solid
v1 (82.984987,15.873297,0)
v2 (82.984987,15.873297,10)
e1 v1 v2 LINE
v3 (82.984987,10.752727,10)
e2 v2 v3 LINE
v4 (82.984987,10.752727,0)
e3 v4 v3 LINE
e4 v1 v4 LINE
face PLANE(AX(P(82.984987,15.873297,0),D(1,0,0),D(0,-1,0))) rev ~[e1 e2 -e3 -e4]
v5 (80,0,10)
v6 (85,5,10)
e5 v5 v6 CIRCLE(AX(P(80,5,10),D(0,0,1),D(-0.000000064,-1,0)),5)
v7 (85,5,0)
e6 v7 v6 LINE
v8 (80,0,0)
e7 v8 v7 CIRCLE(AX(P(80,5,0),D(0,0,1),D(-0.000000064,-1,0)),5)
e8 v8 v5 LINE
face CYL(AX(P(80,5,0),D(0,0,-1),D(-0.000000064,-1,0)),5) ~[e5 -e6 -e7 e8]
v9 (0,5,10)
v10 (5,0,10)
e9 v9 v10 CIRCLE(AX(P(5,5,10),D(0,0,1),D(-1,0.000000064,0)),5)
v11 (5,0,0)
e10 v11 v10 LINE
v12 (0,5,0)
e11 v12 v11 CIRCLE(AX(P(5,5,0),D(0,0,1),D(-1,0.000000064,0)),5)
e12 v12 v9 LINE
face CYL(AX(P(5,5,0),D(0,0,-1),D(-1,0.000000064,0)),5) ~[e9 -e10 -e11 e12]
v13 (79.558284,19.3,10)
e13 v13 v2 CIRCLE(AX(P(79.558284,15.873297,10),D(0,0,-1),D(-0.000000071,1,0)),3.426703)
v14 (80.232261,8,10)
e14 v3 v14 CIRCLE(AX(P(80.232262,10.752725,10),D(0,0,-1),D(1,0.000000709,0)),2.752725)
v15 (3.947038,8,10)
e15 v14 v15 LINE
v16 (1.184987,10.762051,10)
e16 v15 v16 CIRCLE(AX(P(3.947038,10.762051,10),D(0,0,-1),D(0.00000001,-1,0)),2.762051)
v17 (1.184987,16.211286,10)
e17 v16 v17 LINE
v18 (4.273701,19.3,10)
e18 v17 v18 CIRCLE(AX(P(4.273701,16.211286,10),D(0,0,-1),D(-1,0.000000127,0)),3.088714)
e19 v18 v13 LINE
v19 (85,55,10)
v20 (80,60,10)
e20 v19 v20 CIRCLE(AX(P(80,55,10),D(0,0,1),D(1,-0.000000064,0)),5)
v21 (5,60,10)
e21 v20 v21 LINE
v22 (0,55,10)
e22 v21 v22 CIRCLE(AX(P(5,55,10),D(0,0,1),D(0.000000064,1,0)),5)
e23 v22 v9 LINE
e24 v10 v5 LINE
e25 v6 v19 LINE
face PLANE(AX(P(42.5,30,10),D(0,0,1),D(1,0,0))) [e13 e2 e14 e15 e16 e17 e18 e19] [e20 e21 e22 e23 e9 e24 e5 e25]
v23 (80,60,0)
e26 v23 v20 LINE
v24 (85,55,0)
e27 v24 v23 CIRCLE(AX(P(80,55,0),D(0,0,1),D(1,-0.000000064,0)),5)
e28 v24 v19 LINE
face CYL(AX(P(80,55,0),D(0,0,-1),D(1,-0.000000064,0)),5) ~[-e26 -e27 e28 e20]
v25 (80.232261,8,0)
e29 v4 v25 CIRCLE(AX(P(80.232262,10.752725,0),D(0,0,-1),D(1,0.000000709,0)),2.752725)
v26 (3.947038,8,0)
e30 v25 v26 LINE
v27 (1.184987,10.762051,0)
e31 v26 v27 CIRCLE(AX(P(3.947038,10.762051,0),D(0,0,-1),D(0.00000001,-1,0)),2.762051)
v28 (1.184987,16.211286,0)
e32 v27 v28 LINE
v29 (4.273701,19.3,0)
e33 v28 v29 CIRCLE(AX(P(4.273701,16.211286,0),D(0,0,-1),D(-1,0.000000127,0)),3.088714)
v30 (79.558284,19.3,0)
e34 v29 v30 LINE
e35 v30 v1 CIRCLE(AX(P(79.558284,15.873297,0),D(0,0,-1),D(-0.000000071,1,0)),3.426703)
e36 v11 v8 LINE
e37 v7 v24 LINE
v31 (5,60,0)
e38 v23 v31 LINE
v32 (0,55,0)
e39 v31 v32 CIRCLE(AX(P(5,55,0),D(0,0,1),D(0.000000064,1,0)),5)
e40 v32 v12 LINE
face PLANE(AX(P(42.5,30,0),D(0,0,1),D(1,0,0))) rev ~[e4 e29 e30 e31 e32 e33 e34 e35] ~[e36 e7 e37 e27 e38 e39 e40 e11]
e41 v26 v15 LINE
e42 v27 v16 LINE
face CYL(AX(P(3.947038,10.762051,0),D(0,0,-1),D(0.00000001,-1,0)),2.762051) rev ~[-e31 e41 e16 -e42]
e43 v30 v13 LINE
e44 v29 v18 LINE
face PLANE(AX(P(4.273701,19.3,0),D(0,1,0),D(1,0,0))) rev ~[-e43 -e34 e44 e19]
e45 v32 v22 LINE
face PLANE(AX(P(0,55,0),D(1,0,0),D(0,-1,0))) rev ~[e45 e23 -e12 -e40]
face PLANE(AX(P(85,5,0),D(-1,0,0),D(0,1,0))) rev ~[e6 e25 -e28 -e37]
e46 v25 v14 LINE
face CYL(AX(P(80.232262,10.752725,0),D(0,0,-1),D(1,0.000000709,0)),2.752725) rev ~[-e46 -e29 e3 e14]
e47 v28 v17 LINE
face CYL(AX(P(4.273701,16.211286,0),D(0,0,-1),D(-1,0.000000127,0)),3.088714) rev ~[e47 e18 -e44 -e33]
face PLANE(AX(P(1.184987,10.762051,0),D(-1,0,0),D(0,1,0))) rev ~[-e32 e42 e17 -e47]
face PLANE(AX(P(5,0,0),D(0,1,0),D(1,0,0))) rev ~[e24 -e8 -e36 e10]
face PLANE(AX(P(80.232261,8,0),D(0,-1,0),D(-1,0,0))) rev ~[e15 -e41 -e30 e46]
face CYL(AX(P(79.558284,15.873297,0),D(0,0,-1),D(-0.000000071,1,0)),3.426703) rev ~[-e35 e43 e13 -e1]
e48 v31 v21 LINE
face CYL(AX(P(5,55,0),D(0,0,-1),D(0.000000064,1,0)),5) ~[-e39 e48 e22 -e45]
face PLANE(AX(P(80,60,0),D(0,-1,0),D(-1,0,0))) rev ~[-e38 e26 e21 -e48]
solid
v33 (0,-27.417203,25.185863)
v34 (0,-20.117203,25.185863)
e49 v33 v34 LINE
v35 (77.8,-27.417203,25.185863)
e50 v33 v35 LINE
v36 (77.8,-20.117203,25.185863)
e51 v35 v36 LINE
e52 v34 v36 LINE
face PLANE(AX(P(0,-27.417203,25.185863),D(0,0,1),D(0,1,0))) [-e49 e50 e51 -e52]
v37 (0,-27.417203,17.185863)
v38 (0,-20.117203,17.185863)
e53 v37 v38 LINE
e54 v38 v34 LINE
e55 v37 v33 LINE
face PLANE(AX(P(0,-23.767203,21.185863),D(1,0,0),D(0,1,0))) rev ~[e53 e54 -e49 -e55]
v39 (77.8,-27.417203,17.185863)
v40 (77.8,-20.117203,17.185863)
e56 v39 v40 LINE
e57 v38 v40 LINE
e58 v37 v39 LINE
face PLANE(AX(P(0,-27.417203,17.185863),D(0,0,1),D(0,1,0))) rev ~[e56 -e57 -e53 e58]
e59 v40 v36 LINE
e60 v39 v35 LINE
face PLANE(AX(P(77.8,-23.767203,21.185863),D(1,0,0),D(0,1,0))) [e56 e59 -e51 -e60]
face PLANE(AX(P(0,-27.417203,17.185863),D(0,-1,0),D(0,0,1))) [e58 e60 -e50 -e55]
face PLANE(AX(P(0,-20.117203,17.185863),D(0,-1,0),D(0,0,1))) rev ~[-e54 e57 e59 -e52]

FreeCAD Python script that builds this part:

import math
import FreeCAD as App
import Part
import Sketcher

V = App.Vector


def add_polygon(sketch, points):
    """Adds a closed chain of lines whose ends are joined by coincident constraints."""
    first, n = sketch.GeometryCount, len(points)
    for a, b in zip(points, points[1:] + points[:1]):
        sketch.addGeometry(Part.LineSegment(App.Vector(*a, 0), App.Vector(*b, 0)), False)
    for i in range(n):
        sketch.addConstraint(Sketcher.Constraint("Coincident", first + i, 2, first + (i + 1) % n, 1))

doc = App.newDocument("Part")
body = doc.addObject("PartDesign::Body", "Body")

# Sketch on XY plane
sketch1 = body.newObject("Sketcher::SketchObject", "Sketch")
sketch1.AttachmentSupport = (doc.getObject("XY_Plane"), [""])
sketch1.MapMode = "FlatFace"
sketch1.addGeometry([
    Part.ArcOfCircle(Part.Circle(V(5, 5, 0), V(0, 0, 1), 5), math.radians(180), math.radians(270)),  # 0
    Part.LineSegment(V(5, 0, 0), V(80, 0, 0)),  # 1
    Part.ArcOfCircle(Part.Circle(V(80, 5, 0), V(0, 0, 1), 5), math.radians(-90), math.radians(0)),  # 2
    Part.LineSegment(V(85, 5, 0), V(85, 55, 0)),  # 3
    Part.ArcOfCircle(Part.Circle(V(80, 55, 0), V(0, 0, 1), 5), math.radians(0), math.radians(90)),  # 4
    Part.LineSegment(V(80, 60, 0), V(5, 60, 0)),  # 5
    Part.ArcOfCircle(Part.Circle(V(5, 55, 0), V(0, 0, 1), 5), math.radians(90), math.radians(180)),  # 6
    Part.LineSegment(V(0, 55, 0), V(0, 5, 0)),  # 7
    Part.ArcOfCircle(Part.Circle(V(80.2, 10.8, 0), V(0, 0, 1), 2.8), math.radians(-90), math.radians(0)),  # 8
    Part.LineSegment(V(80.2, 8, 0), V(3.9, 8, 0)),  # 9
    Part.ArcOfCircle(Part.Circle(V(3.9, 10.8, 0), V(0, 0, 1), 2.8), math.radians(180), math.radians(270)),  # 10
    Part.LineSegment(V(1.2, 10.8, 0), V(1.2, 16.2, 0)),  # 11
    Part.ArcOfCircle(Part.Circle(V(4.3, 16.2, 0), V(0, 0, 1), 3.1), math.radians(90), math.radians(180)),  # 12
    Part.LineSegment(V(4.3, 19.3, 0), V(79.6, 19.3, 0)),  # 13
    Part.ArcOfCircle(Part.Circle(V(79.6, 15.9, 0), V(0, 0, 1), 3.4), math.radians(0), math.radians(90)),  # 14
    Part.LineSegment(V(83, 15.9, 0), V(83, 10.8, 0)),  # 15
], False)
sketch1.addConstraint([
    Sketcher.Constraint("Tangent", 0, 2, 1, 1),
    Sketcher.Constraint("Tangent", 1, 2, 2, 1),
    Sketcher.Constraint("Tangent", 2, 2, 3, 1),
    Sketcher.Constraint("Tangent", 3, 2, 4, 1),
    Sketcher.Constraint("Tangent", 4, 2, 5, 1),
    Sketcher.Constraint("Tangent", 5, 2, 6, 1),
    Sketcher.Constraint("Tangent", 6, 2, 7, 1),
    Sketcher.Constraint("Tangent", 7, 2, 0, 1),
    Sketcher.Constraint("Tangent", 8, 1, 9, 1),
    Sketcher.Constraint("Tangent", 9, 2, 10, 2),
    Sketcher.Constraint("Tangent", 10, 1, 11, 1),
    Sketcher.Constraint("Tangent", 11, 2, 12, 2),
    Sketcher.Constraint("Tangent", 12, 1, 13, 1),
    Sketcher.Constraint("Tangent", 13, 2, 14, 2),
    Sketcher.Constraint("Tangent", 14, 1, 15, 1),
    Sketcher.Constraint("Tangent", 15, 2, 8, 2),
    Sketcher.Constraint("Horizontal", 1),
    Sketcher.Constraint("Vertical", 3),
    Sketcher.Constraint("Horizontal", 5),
    Sketcher.Constraint("Vertical", 7),
    Sketcher.Constraint("Horizontal", 9),
    Sketcher.Constraint("Vertical", 11),
    Sketcher.Constraint("Horizontal", 13),
    Sketcher.Constraint("Vertical", 15),
    Sketcher.Constraint("Equal", 0, 2),
    Sketcher.Constraint("Equal", 2, 4),
    Sketcher.Constraint("Equal", 4, 6),
    Sketcher.Constraint("PointOnObject", 0, 2, -1),
    Sketcher.Constraint("PointOnObject", 6, 2, -2),
    Sketcher.Constraint("Radius", 0, 5.0),
    Sketcher.Constraint("DistanceX", 1, 1, 1, 2, 75.0),
    Sketcher.Constraint("DistanceY", 3, 1, 3, 2, 50.0),
    Sketcher.Constraint("DistanceY", -1, 1, 8, 1, 8.0),
    Sketcher.Constraint("DistanceY", -1, 1, 12, 1, 19.3),
    Sketcher.Constraint("Radius", 10, 2.762051),
    Sketcher.Constraint("Radius", 8, 2.752725),
    Sketcher.Constraint("Radius", 12, 3.088714),
    Sketcher.Constraint("Radius", 14, 3.426703),
    Sketcher.Constraint("DistanceX", -1, 1, 12, 3, 4.273701),
    Sketcher.Constraint("DistanceX", 9, 2, 9, 1, 76.285223),
])
pad1 = body.newObject("PartDesign::Pad", "Pad")
pad1.Profile = sketch1
pad1.Length = 10
body2 = doc.addObject("PartDesign::Body", "Body001")

# Sketch on YZ plane
sketch2 = body2.newObject("Sketcher::SketchObject", "Sketch001")
sketch2.AttachmentSupport = (doc.getObject("YZ_Plane001"), [""])
sketch2.MapMode = "FlatFace"
add_polygon(sketch2, [(-27, 25), (-27, 17), (-20, 17), (-20, 25)])  # lines 0-3
sketch2.addConstraint([
    Sketcher.Constraint("Vertical", 0),
    Sketcher.Constraint("Horizontal", 1),
    Sketcher.Constraint("Vertical", 2),
    Sketcher.Constraint("Horizontal", 3),
    Sketcher.Constraint("DistanceY", 0, 2, 0, 1, 8.0),
    Sketcher.Constraint("DistanceX", 1, 1, 1, 2, 7.3),
    Sketcher.Constraint("DistanceX", 0, 2, -1, 1, 27.417203),
    Sketcher.Constraint("DistanceY", -1, 1, 0, 2, 17.185863),
])
pad2 = body2.newObject("PartDesign::Pad", "Pad001")
pad2.Profile = sketch2
pad2.Length = 77.8

doc.recompute()
